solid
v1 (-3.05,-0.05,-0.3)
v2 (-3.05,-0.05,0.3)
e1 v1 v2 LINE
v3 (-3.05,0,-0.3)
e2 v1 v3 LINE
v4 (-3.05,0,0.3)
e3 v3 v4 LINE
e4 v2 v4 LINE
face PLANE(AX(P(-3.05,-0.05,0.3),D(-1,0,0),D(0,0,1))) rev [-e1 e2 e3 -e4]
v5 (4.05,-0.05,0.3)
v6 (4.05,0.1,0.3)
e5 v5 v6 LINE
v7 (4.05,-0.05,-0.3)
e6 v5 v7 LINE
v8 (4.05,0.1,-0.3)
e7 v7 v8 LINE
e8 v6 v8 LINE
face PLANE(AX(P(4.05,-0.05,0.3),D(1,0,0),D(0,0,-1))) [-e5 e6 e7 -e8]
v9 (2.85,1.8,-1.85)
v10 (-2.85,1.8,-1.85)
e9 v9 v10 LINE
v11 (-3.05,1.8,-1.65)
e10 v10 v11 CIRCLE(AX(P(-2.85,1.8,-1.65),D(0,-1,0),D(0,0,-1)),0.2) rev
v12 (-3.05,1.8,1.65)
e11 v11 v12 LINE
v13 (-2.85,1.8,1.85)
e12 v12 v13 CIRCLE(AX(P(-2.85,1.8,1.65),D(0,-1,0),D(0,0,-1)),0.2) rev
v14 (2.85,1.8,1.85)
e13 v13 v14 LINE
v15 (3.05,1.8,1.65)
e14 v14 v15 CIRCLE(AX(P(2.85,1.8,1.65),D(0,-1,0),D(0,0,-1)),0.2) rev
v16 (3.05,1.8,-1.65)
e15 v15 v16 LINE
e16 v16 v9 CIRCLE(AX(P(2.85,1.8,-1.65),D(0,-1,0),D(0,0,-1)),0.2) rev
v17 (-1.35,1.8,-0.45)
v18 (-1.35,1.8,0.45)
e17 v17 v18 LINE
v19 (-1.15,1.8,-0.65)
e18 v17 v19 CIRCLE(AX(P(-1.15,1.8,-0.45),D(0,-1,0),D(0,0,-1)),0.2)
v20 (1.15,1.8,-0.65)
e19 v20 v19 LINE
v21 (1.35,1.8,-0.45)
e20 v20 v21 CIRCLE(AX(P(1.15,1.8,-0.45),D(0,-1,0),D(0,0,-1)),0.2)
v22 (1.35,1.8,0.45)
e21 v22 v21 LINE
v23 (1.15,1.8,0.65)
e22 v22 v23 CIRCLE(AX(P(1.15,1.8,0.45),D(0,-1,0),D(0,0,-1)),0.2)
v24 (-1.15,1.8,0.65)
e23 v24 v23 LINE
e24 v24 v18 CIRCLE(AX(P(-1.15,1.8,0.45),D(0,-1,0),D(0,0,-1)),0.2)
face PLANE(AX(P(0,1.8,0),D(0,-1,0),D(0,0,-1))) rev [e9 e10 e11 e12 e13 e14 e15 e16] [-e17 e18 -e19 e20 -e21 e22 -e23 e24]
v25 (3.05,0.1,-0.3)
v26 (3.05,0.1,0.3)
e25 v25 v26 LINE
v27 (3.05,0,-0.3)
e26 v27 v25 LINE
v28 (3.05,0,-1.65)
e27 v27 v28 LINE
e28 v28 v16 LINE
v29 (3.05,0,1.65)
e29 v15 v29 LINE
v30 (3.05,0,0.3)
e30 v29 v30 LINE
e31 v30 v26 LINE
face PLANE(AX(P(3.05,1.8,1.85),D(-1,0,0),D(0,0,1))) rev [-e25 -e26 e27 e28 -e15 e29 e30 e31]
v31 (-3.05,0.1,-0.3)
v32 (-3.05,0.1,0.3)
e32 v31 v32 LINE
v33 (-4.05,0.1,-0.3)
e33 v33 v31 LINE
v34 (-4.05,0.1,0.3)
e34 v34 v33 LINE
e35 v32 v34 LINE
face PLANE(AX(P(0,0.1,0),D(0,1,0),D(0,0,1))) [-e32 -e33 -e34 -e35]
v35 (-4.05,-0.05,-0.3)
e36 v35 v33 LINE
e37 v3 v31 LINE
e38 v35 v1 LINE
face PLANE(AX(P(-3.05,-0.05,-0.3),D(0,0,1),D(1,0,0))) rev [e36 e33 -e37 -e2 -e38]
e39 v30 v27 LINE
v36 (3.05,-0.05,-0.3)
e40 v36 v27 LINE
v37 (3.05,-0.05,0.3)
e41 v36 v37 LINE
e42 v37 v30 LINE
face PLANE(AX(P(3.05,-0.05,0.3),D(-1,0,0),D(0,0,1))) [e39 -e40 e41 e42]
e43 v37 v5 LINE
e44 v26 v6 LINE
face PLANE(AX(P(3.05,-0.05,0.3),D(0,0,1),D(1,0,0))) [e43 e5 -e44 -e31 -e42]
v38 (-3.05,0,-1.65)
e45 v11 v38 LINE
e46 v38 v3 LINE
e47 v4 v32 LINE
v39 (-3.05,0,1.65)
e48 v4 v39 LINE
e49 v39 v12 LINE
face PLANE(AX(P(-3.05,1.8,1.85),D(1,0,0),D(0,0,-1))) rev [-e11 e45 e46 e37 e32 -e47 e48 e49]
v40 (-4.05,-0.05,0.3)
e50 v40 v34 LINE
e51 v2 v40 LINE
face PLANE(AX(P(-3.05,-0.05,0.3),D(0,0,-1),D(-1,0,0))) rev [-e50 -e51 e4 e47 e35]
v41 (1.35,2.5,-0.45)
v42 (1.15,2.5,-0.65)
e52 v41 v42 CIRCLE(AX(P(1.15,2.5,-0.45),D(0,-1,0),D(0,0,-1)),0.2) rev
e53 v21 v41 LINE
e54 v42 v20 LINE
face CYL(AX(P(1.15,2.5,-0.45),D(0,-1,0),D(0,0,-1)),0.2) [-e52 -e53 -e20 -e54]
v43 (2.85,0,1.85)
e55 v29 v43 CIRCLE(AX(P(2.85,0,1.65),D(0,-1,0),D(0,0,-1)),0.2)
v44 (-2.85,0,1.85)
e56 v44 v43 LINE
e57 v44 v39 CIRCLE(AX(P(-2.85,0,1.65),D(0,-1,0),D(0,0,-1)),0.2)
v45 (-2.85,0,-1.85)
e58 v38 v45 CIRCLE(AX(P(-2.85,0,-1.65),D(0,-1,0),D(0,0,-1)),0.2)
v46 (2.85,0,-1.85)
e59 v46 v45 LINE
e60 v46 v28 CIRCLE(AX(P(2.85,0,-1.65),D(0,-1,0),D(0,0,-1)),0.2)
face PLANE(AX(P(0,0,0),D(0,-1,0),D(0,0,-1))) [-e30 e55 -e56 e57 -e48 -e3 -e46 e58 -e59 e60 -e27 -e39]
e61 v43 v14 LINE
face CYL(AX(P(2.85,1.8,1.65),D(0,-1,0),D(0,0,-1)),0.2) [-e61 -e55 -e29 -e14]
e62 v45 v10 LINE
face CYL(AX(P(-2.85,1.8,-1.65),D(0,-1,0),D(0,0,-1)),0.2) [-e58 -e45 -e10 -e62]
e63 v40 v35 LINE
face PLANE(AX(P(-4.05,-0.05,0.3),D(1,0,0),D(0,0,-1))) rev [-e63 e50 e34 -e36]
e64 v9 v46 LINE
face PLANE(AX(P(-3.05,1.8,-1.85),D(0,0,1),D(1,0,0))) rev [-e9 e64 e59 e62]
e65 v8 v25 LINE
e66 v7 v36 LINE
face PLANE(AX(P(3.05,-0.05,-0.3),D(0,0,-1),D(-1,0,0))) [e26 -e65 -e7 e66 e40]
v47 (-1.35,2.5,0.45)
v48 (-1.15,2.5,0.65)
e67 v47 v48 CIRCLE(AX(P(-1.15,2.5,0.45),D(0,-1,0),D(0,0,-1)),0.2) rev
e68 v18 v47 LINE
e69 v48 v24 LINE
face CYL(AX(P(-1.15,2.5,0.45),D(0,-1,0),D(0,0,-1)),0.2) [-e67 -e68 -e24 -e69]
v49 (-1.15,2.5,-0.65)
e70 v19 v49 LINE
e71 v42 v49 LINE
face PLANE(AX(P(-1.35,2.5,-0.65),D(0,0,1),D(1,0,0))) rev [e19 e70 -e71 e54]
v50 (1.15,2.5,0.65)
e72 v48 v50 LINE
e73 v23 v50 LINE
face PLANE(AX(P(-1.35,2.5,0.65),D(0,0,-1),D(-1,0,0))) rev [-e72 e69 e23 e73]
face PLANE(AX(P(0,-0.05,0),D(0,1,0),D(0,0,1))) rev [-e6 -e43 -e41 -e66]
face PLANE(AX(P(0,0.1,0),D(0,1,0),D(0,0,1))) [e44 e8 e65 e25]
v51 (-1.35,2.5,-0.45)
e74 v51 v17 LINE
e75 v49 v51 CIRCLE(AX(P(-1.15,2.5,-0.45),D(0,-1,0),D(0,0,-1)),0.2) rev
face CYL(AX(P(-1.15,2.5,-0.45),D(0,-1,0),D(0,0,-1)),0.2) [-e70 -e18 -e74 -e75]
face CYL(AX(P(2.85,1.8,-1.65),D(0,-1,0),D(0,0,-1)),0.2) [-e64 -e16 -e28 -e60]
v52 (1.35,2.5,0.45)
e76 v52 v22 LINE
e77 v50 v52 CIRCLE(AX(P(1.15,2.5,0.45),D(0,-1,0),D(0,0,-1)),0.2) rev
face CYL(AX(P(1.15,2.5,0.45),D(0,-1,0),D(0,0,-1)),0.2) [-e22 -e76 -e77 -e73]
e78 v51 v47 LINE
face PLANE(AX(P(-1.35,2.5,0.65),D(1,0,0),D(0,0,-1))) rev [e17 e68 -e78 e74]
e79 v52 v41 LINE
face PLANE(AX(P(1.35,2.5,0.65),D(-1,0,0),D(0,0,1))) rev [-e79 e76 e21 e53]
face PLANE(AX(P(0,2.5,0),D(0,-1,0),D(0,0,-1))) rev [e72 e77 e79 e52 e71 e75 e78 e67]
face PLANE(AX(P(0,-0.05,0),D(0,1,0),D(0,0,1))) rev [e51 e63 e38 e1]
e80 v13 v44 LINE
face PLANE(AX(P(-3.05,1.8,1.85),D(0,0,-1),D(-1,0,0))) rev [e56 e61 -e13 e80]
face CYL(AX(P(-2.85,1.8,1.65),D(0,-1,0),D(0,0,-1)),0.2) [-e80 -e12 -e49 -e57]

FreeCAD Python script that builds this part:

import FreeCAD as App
import Part
import Sketcher
Q = App.Units.Quantity


def edges_at(feature, points):
    """Names of the edges that pass closest to the given points."""
    edges = feature.Shape.Edges
    near = lambda p: min(range(len(edges)), key=lambda i: edges[i].distToShape(Part.Vertex(*p))[0])
    return sorted({f"Edge{near(p) + 1}" for p in points})

doc = App.newDocument("Part")
body = doc.addObject("PartDesign::Body", "Body")

sketch1 = doc.addObject("Sketcher::SketchObject", "Sketch")
body.addObject(sketch1)
sketch1.AttachmentSupport = (doc.XZ_Plane, [""])
sketch1.MapMode = "FlatFace"
sketch1.addGeometry(Part.LineSegment(App.Vector(-3, -1.9, 0), App.Vector(-3, 1.9, 0)), False)
sketch1.addGeometry(Part.LineSegment(App.Vector(-3, 1.9, 0), App.Vector(3, 1.9, 0)), False)
sketch1.addGeometry(Part.LineSegment(App.Vector(3, 1.9, 0), App.Vector(3, -1.9, 0)), False)
sketch1.addGeometry(Part.LineSegment(App.Vector(3, -1.9, 0), App.Vector(-3, -1.9, 0)), False)
sketch1.addConstraint(Sketcher.Constraint("Coincident", 0, 2, 1, 1))
sketch1.addConstraint(Sketcher.Constraint("Coincident", 1, 2, 2, 1))
sketch1.addConstraint(Sketcher.Constraint("Coincident", 2, 2, 3, 1))
sketch1.addConstraint(Sketcher.Constraint("Coincident", 3, 2, 0, 1))
sketch1.addConstraint(Sketcher.Constraint("Vertical", 0))
sketch1.addConstraint(Sketcher.Constraint("Horizontal", 1))
sketch1.addConstraint(Sketcher.Constraint("Vertical", 2))
sketch1.addConstraint(Sketcher.Constraint("Horizontal", 3))
sketch1.addConstraint(Sketcher.Constraint("Symmetric", 0, 2, 2, 2, -1, 1))
sketch1.addConstraint(Sketcher.Constraint("DistanceX", 1, 1, 1, 2, Q("6.1 mm")))
sketch1.addConstraint(Sketcher.Constraint("DistanceY", 0, 1, 0, 2, Q("3.7 mm")))
pad1 = doc.addObject("PartDesign::Pad", "Pad")
body.addObject(pad1)
pad1.Profile = sketch1
pad1.Length = 1.8
pad1.Reversed = True

sketch2 = doc.addObject("Sketcher::SketchObject", "Sketch001")
body.addObject(sketch2)
sketch2.AttachmentSupport = (doc.XZ_Plane, [""])
sketch2.MapMode = "FlatFace"
sketch2.AttachmentOffset = App.Placement(App.Vector(0, 0, -1.8), App.Rotation())
sketch2.addGeometry(Part.LineSegment(App.Vector(-1.4, -0.7, 0), App.Vector(-1.4, 0.7, 0)), False)
sketch2.addGeometry(Part.LineSegment(App.Vector(-1.4, 0.7, 0), App.Vector(1.4, 0.7, 0)), False)
sketch2.addGeometry(Part.LineSegment(App.Vector(1.4, 0.7, 0), App.Vector(1.4, -0.7, 0)), False)
sketch2.addGeometry(Part.LineSegment(App.Vector(1.4, -0.7, 0), App.Vector(-1.4, -0.7, 0)), False)
sketch2.addConstraint(Sketcher.Constraint("Coincident", 0, 2, 1, 1))
sketch2.addConstraint(Sketcher.Constraint("Coincident", 1, 2, 2, 1))
sketch2.addConstraint(Sketcher.Constraint("Coincident", 2, 2, 3, 1))
sketch2.addConstraint(Sketcher.Constraint("Coincident", 3, 2, 0, 1))
sketch2.addConstraint(Sketcher.Constraint("Vertical", 0))
sketch2.addConstraint(Sketcher.Constraint("Horizontal", 1))
sketch2.addConstraint(Sketcher.Constraint("Vertical", 2))
sketch2.addConstraint(Sketcher.Constraint("Horizontal", 3))
sketch2.addConstraint(Sketcher.Constraint("Symmetric", 0, 2, 2, 2, -1, 1))
sketch2.addConstraint(Sketcher.Constraint("DistanceX", 1, 1, 1, 2, Q("2.7 mm")))
sketch2.addConstraint(Sketcher.Constraint("DistanceY", 0, 1, 0, 2, Q("1.3 mm")))
pad2 = doc.addObject("PartDesign::Pad", "Pad001")
body.addObject(pad2)
pad2.Profile = sketch2
pad2.Length = 0.7
pad2.Reversed = True

sketch3 = doc.addObject("Sketcher::SketchObject", "Sketch002")
body.addObject(sketch3)
sketch3.AttachmentSupport = (doc.XZ_Plane, [""])
sketch3.MapMode = "FlatFace"
sketch3.AttachmentOffset = App.Placement(App.Vector(0, 0, -0.1), App.Rotation())
sketch3.addGeometry(Part.LineSegment(App.Vector(-4, 0.3, 0), App.Vector(-4, -0.3, 0)), False)
sketch3.addGeometry(Part.LineSegment(App.Vector(-4, -0.3, 0), App.Vector(-3, -0.3, 0)), False)
sketch3.addGeometry(Part.LineSegment(App.Vector(-3, -0.3, 0), App.Vector(-3, 0.3, 0)), False)
sketch3.addGeometry(Part.LineSegment(App.Vector(-3, 0.3, 0), App.Vector(-4, 0.3, 0)), False)
sketch3.addConstraint(Sketcher.Constraint("Coincident", 0, 2, 1, 1))
sketch3.addConstraint(Sketcher.Constraint("Coincident", 1, 2, 2, 1))
sketch3.addConstraint(Sketcher.Constraint("Coincident", 2, 2, 3, 1))
sketch3.addConstraint(Sketcher.Constraint("Coincident", 3, 2, 0, 1))
sketch3.addConstraint(Sketcher.Constraint("Vertical", 0))
sketch3.addConstraint(Sketcher.Constraint("Horizontal", 1))
sketch3.addConstraint(Sketcher.Constraint("Vertical", 2))
sketch3.addConstraint(Sketcher.Constraint("Horizontal", 3))
sketch3.addConstraint(Sketcher.Constraint("DistanceX", 1, 1, 1, 2, Q("1 mm")))
sketch3.addConstraint(Sketcher.Constraint("DistanceY", 0, 2, 0, 1, Q("0.6 mm")))
sketch3.addConstraint(Sketcher.Constraint("DistanceY", 0, 2, -1, 1, Q("0.3 mm")))
sketch3.addConstraint(Sketcher.Constraint("DistanceX", 0, 2, -1, 1, Q("4.05 mm")))
pad3 = doc.addObject("PartDesign::Pad", "Pad002")
body.addObject(pad3)
pad3.Profile = sketch3
pad3.Length = 0.15
doc.recompute()

mirrored = doc.addObject("PartDesign::Mirrored", "Mirrored")
body.addObject(mirrored)
mirrored.Originals = [pad3]
mirrored.MirrorPlane = (doc.YZ_Plane, [""])
body.Tip = mirrored
doc.recompute()

fillet = doc.addObject("PartDesign::Fillet", "Fillet")
body.addObject(fillet)
fillet.Base = (mirrored, edges_at(mirrored, [
    (1.35, 2.15, 0.65),
    (1.35, 2.15, -0.65),
    (-1.35, 2.15, -0.65),
    (-1.35, 2.15, 0.65),
]))
fillet.Radius = 0.2
doc.recompute()

fillet2 = doc.addObject("PartDesign::Fillet", "Fillet001")
body.addObject(fillet2)
fillet2.Base = (fillet, edges_at(fillet, [
    (3.05, 0.9, 1.85),
    (-3.05, 0.9, 1.85),
    (-3.05, 0.9, -1.85),
    (3.05, 0.9, -1.85),
]))
fillet2.Radius = 0.2

doc.recompute()
